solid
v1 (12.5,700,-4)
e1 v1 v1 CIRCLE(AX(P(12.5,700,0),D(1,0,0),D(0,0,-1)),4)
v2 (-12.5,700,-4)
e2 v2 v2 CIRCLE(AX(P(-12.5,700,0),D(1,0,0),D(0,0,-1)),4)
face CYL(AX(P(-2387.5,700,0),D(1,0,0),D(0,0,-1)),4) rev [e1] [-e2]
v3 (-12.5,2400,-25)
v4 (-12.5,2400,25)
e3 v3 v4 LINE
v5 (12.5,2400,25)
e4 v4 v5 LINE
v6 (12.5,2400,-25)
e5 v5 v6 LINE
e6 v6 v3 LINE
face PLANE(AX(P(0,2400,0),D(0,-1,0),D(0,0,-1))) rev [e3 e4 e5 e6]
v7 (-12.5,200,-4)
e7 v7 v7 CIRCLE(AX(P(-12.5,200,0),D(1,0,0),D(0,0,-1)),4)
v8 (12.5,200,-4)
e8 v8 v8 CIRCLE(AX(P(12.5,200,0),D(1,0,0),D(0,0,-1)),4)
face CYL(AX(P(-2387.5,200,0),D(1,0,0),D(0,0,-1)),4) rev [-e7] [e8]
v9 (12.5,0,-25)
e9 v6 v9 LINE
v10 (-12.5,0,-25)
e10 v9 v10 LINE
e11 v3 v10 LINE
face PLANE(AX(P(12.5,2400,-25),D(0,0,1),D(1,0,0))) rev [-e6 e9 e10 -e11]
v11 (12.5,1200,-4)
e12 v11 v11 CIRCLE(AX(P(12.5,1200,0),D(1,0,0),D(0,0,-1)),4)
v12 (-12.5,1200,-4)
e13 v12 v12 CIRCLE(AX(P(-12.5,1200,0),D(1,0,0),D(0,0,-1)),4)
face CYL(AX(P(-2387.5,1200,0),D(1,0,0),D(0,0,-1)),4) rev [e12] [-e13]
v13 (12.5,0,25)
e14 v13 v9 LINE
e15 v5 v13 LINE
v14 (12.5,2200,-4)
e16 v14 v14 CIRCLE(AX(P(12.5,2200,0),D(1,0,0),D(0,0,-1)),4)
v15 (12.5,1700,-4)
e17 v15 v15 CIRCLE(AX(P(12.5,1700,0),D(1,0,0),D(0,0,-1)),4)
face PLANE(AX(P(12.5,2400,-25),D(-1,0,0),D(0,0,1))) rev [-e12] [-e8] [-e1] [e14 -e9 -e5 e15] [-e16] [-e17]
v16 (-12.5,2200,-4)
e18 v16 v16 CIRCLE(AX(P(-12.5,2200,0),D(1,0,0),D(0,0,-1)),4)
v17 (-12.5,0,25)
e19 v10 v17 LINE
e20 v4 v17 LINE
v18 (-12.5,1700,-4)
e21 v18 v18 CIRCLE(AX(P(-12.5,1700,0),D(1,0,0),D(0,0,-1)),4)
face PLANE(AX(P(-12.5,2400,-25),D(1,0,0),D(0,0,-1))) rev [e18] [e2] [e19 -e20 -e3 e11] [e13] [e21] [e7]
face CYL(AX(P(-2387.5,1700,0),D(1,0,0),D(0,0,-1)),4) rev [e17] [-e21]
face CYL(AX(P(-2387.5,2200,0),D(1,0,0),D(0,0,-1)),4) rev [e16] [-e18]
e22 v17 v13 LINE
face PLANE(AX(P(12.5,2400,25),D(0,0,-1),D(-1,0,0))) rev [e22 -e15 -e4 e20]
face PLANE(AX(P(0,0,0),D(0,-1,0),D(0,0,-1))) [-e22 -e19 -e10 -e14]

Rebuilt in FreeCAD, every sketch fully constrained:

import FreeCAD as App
import Part
import Sketcher
from FreeCAD import Vector
Q = App.Units.Quantity

doc = App.newDocument("Part")
body = doc.addObject("PartDesign::Body", "Body")

# Sketch on XZ plane
sketch1 = body.newObject("Sketcher::SketchObject", "Sketch")
sketch1.AttachmentSupport = (doc.getObject("XZ_Plane"), [""])
sketch1.MapMode = "FlatFace"
sketch1.addGeometry([
    Part.LineSegment(Vector(-12.5, -25, 0), Vector(-12.5, 25, 0)),
    Part.LineSegment(Vector(-12.5, 25, 0), Vector(12.5, 25, 0)),
    Part.LineSegment(Vector(12.5, 25, 0), Vector(12.5, -25, 0)),
    Part.LineSegment(Vector(12.5, -25, 0), Vector(-12.5, -25, 0)),
], False)
sketch1.addConstraint([
    Sketcher.Constraint("Coincident", 0, 2, 1, 1),
    Sketcher.Constraint("Coincident", 1, 2, 2, 1),
    Sketcher.Constraint("Coincident", 2, 2, 3, 1),
    Sketcher.Constraint("Coincident", 3, 2, 0, 1),
    Sketcher.Constraint("Vertical", 0),
    Sketcher.Constraint("Horizontal", 1),
    Sketcher.Constraint("Vertical", 2),
    Sketcher.Constraint("Horizontal", 3),
    Sketcher.Constraint("Symmetric", 0, 2, 2, 2, -1, 1),
    Sketcher.Constraint("DistanceX", 1, 1, 1, 2, Q("25 mm")),
    Sketcher.Constraint("DistanceY", 0, 1, 0, 2, Q("50 mm")),
])
pad1 = body.newObject("PartDesign::Pad", "Pad")
pad1.Profile = sketch1
pad1.Length = 2400
pad1.Reversed = True

# Sketch on YZ plane
sketch2 = body.newObject("Sketcher::SketchObject", "Sketch001")
sketch2.AttachmentSupport = (doc.getObject("YZ_Plane"), [""])
sketch2.MapMode = "FlatFace"
sketch2.AttachmentOffset = App.Placement(Vector(0, 0, 12.5), App.Rotation())
sketch2.addGeometry([
    Part.Circle(Vector(2200, 0, 0), Vector(0, 0, 1), 4),  # 0
    Part.Circle(Vector(1700, 0, 0), Vector(0, 0, 1), 4),  # 1
    Part.Circle(Vector(1200, 0, 0), Vector(0, 0, 1), 4),  # 2
    Part.Circle(Vector(700, 0, 0), Vector(0, 0, 1), 4),  # 3
    Part.Circle(Vector(200, 0, 0), Vector(0, 0, 1), 4),  # 4
], False)
sketch2.addConstraint([
    Sketcher.Constraint("Equal", 0, 1),
    Sketcher.Constraint("Equal", 1, 2),
    Sketcher.Constraint("Equal", 2, 3),
    Sketcher.Constraint("Equal", 3, 4),
    Sketcher.Constraint("PointOnObject", 0, 3, -1),
    Sketcher.Constraint("PointOnObject", 1, 3, -1),
    Sketcher.Constraint("PointOnObject", 2, 3, -1),
    Sketcher.Constraint("PointOnObject", 3, 3, -1),
    Sketcher.Constraint("PointOnObject", 4, 3, -1),
    Sketcher.Constraint("Diameter", 0, Q("8 mm")),
    Sketcher.Constraint("DistanceX", -1, 1, 0, 3, Q("2200 mm")),
    Sketcher.Constraint("DistanceX", -1, 1, 1, 3, Q("1700 mm")),
    Sketcher.Constraint("DistanceX", -1, 1, 2, 3, Q("1200 mm")),
    Sketcher.Constraint("DistanceX", -1, 1, 3, 3, Q("700 mm")),
    Sketcher.Constraint("DistanceX", -1, 1, 4, 3, Q("200 mm")),
])
pocket1 = body.newObject("PartDesign::Pocket", "Pocket")
pocket1.Profile = sketch2
pocket1.Length = 2400

doc.recompute()
